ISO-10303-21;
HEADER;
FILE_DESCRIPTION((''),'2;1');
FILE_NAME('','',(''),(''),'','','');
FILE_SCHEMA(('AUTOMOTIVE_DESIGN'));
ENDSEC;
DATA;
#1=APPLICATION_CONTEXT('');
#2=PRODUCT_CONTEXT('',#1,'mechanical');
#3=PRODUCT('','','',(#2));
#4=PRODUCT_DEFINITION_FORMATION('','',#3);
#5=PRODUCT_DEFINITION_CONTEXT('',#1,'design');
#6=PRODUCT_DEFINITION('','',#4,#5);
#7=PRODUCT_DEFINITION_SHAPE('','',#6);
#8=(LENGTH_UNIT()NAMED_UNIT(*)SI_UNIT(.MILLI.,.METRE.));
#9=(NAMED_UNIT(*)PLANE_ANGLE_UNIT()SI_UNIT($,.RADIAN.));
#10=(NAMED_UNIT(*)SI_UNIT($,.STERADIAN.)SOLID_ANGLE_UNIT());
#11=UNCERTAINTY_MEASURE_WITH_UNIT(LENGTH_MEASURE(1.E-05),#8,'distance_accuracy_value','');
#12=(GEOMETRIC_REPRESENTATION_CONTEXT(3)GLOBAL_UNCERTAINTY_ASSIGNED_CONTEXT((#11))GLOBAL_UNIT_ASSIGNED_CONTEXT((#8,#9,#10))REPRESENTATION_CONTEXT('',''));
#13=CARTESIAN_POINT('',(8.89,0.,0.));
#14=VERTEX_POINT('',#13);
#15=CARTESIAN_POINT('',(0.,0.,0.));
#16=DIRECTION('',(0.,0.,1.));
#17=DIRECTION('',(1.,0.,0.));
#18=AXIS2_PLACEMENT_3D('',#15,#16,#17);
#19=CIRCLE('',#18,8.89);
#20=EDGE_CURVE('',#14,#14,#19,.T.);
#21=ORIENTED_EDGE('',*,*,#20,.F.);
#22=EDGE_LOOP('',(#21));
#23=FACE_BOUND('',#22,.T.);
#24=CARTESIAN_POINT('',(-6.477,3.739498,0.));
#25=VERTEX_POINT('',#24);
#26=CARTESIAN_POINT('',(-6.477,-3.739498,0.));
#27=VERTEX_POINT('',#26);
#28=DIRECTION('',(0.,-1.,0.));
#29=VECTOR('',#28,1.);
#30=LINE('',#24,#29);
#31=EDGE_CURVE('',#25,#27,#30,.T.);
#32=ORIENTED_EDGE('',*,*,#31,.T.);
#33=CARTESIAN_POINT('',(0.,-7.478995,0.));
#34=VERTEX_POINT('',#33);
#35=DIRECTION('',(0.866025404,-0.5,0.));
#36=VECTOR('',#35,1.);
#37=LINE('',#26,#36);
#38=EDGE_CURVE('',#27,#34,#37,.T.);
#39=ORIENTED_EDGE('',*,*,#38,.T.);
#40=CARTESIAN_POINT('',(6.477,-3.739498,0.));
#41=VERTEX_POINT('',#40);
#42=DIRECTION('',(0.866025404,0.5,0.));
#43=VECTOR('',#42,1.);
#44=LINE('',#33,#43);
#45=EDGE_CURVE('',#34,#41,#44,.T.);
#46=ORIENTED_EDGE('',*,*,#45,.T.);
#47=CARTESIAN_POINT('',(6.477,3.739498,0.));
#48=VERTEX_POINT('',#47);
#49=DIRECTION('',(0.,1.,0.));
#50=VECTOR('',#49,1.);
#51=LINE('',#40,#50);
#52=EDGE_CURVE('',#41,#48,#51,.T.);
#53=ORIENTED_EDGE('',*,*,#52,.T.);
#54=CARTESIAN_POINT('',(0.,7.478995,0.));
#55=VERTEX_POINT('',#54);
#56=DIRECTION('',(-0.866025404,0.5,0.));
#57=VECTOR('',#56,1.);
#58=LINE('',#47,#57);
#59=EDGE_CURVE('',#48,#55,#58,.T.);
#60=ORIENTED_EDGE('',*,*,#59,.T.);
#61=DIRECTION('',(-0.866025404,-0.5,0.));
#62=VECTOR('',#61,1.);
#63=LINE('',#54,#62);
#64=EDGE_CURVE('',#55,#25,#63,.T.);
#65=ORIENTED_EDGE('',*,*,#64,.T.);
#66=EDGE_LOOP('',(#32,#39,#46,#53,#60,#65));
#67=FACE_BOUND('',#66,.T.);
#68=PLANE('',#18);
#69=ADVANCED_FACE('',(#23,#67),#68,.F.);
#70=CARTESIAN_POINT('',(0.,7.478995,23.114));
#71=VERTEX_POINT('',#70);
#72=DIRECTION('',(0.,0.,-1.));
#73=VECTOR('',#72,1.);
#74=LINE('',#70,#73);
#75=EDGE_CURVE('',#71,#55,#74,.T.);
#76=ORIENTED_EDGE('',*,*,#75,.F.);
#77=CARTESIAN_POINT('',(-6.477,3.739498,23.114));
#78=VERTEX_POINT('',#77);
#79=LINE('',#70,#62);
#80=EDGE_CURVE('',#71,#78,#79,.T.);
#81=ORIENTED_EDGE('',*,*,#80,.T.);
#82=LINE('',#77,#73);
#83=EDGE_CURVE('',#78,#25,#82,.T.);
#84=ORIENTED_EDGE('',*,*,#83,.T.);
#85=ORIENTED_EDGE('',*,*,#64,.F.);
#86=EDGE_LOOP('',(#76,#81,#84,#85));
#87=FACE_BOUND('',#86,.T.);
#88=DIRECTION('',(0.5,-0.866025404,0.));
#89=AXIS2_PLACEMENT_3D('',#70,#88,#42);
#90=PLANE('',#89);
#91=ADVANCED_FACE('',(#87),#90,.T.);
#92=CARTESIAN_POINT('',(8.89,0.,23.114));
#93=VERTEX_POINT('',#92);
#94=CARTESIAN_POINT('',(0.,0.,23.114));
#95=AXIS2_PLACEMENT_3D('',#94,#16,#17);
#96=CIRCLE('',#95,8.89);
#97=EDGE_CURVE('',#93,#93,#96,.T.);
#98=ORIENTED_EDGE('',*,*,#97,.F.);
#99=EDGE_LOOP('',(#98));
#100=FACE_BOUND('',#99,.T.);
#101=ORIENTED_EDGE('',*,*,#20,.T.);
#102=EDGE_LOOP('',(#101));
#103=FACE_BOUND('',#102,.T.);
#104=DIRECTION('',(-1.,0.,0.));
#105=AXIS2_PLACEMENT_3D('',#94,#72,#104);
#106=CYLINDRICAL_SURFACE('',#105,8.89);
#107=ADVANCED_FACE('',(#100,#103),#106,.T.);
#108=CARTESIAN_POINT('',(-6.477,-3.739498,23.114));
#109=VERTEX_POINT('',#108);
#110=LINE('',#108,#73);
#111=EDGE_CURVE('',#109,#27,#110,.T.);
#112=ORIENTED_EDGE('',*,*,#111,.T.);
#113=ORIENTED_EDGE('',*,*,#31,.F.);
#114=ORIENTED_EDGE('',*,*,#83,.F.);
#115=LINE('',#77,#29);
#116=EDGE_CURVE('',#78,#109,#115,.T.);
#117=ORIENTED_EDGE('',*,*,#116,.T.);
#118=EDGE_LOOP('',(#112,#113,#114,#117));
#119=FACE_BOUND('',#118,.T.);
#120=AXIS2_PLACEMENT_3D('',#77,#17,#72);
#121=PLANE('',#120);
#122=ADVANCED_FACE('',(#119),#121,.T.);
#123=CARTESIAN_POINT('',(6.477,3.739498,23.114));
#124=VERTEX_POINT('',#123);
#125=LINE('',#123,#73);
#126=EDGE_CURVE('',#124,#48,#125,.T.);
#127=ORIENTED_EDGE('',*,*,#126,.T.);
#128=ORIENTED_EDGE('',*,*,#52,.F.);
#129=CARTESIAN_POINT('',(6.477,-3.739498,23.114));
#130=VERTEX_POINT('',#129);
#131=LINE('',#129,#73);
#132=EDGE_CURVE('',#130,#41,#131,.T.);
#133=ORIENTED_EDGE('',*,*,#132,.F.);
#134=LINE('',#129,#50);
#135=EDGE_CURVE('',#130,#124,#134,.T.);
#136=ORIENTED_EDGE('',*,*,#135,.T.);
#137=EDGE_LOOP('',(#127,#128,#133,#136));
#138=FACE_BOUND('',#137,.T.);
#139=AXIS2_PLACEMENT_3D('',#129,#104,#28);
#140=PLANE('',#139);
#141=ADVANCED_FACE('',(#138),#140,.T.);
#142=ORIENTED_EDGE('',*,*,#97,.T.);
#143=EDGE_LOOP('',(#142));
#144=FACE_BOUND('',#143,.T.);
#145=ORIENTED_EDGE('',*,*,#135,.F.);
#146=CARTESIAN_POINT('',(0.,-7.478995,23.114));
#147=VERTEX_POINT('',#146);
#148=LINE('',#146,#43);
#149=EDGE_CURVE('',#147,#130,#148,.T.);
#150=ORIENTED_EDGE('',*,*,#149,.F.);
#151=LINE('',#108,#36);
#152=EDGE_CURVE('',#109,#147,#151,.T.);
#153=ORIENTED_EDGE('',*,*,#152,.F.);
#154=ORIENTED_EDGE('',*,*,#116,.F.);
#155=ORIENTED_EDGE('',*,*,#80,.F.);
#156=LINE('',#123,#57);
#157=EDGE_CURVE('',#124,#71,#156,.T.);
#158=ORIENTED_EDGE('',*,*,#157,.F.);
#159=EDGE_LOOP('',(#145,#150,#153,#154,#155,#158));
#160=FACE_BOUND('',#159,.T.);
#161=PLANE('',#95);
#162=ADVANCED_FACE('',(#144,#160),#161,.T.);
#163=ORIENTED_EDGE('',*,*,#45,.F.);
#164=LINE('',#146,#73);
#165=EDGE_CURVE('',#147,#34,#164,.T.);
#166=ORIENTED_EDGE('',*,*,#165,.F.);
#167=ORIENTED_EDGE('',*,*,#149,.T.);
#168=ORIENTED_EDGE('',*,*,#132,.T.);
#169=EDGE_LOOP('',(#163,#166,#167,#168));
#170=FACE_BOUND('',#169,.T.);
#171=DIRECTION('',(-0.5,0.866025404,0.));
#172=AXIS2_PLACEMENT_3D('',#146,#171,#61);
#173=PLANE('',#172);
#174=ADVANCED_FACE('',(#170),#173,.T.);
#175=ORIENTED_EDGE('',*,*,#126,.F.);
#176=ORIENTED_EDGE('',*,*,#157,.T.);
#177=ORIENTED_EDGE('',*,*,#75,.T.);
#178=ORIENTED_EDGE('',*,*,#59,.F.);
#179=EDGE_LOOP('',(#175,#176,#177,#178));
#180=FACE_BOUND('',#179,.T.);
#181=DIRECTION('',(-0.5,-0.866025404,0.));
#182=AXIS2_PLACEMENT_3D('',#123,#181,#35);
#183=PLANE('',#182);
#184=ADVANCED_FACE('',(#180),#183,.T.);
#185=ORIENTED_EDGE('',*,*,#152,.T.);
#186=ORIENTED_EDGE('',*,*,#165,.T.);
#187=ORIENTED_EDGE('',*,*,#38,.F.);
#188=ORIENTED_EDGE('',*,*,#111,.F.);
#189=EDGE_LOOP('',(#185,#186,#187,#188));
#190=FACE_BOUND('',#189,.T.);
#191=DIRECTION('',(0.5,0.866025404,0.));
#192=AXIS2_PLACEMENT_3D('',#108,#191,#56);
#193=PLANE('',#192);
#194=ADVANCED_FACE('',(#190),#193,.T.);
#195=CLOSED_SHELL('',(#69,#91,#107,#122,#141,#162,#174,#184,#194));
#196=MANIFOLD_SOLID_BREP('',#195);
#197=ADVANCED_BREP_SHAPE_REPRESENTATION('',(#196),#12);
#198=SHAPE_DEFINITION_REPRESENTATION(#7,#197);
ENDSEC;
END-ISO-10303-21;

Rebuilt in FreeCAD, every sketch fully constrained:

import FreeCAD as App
import Part
import Sketcher
Q = App.Units.Quantity


def add_polygon(sketch, points):
    """Adds a closed chain of lines whose ends are joined by coincident constraints."""
    first, n = sketch.GeometryCount, len(points)
    for a, b in zip(points, points[1:] + points[:1]):
        sketch.addGeometry(Part.LineSegment(App.Vector(*a, 0), App.Vector(*b, 0)), False)
    for i in range(n):
        sketch.addConstraint(Sketcher.Constraint("Coincident", first + i, 2, first + (i + 1) % n, 1))

doc = App.newDocument("Part")
body = doc.addObject("PartDesign::Body", "Body")

sketch1 = body.newObject("Sketcher::SketchObject", "Sketch")
sketch1.AttachmentSupport = (doc.getObject("XY_Plane"), [""])
sketch1.MapMode = "FlatFace"
sketch1.addGeometry(Part.Circle(App.Vector(0, 0, 0), App.Vector(0, 0, 1), 9), False)
add_polygon(sketch1, [(-6, 4), (0, 7), (6, 4), (6, -4), (0, -7), (-6, -4)])
sketch1.addConstraint([
    Sketcher.Constraint("Vertical", 3),
    Sketcher.Constraint("Vertical", 6),
    Sketcher.Constraint("Coincident", 0, 3, -1, 1),
    Sketcher.Constraint("Symmetric", 1, 2, 4, 2, -1, 1),
    Sketcher.Constraint("Symmetric", 2, 2, 5, 2, -1, 1),
    Sketcher.Constraint("PointOnObject", 1, 2, -2),
    Sketcher.Constraint("Parallel", 1, 4),
    Sketcher.Constraint("Horizontal", 3, 2, 5, 2),
    Sketcher.Constraint("Diameter", 0, Q("0.7 in")),
    Sketcher.Constraint("Angle", 1, Q("30 deg")),
    Sketcher.Constraint("DistanceX", 5, 2, 3, 2, Q("0.51 in")),
    Sketcher.Constraint("DistanceY", 3, 2, 3, 1, Q("7.478995 mm")),
])
pad1 = body.newObject("PartDesign::Pad", "Pad")
pad1.Profile = sketch1
pad1.Length = Q("0.91 in")

doc.recompute()
